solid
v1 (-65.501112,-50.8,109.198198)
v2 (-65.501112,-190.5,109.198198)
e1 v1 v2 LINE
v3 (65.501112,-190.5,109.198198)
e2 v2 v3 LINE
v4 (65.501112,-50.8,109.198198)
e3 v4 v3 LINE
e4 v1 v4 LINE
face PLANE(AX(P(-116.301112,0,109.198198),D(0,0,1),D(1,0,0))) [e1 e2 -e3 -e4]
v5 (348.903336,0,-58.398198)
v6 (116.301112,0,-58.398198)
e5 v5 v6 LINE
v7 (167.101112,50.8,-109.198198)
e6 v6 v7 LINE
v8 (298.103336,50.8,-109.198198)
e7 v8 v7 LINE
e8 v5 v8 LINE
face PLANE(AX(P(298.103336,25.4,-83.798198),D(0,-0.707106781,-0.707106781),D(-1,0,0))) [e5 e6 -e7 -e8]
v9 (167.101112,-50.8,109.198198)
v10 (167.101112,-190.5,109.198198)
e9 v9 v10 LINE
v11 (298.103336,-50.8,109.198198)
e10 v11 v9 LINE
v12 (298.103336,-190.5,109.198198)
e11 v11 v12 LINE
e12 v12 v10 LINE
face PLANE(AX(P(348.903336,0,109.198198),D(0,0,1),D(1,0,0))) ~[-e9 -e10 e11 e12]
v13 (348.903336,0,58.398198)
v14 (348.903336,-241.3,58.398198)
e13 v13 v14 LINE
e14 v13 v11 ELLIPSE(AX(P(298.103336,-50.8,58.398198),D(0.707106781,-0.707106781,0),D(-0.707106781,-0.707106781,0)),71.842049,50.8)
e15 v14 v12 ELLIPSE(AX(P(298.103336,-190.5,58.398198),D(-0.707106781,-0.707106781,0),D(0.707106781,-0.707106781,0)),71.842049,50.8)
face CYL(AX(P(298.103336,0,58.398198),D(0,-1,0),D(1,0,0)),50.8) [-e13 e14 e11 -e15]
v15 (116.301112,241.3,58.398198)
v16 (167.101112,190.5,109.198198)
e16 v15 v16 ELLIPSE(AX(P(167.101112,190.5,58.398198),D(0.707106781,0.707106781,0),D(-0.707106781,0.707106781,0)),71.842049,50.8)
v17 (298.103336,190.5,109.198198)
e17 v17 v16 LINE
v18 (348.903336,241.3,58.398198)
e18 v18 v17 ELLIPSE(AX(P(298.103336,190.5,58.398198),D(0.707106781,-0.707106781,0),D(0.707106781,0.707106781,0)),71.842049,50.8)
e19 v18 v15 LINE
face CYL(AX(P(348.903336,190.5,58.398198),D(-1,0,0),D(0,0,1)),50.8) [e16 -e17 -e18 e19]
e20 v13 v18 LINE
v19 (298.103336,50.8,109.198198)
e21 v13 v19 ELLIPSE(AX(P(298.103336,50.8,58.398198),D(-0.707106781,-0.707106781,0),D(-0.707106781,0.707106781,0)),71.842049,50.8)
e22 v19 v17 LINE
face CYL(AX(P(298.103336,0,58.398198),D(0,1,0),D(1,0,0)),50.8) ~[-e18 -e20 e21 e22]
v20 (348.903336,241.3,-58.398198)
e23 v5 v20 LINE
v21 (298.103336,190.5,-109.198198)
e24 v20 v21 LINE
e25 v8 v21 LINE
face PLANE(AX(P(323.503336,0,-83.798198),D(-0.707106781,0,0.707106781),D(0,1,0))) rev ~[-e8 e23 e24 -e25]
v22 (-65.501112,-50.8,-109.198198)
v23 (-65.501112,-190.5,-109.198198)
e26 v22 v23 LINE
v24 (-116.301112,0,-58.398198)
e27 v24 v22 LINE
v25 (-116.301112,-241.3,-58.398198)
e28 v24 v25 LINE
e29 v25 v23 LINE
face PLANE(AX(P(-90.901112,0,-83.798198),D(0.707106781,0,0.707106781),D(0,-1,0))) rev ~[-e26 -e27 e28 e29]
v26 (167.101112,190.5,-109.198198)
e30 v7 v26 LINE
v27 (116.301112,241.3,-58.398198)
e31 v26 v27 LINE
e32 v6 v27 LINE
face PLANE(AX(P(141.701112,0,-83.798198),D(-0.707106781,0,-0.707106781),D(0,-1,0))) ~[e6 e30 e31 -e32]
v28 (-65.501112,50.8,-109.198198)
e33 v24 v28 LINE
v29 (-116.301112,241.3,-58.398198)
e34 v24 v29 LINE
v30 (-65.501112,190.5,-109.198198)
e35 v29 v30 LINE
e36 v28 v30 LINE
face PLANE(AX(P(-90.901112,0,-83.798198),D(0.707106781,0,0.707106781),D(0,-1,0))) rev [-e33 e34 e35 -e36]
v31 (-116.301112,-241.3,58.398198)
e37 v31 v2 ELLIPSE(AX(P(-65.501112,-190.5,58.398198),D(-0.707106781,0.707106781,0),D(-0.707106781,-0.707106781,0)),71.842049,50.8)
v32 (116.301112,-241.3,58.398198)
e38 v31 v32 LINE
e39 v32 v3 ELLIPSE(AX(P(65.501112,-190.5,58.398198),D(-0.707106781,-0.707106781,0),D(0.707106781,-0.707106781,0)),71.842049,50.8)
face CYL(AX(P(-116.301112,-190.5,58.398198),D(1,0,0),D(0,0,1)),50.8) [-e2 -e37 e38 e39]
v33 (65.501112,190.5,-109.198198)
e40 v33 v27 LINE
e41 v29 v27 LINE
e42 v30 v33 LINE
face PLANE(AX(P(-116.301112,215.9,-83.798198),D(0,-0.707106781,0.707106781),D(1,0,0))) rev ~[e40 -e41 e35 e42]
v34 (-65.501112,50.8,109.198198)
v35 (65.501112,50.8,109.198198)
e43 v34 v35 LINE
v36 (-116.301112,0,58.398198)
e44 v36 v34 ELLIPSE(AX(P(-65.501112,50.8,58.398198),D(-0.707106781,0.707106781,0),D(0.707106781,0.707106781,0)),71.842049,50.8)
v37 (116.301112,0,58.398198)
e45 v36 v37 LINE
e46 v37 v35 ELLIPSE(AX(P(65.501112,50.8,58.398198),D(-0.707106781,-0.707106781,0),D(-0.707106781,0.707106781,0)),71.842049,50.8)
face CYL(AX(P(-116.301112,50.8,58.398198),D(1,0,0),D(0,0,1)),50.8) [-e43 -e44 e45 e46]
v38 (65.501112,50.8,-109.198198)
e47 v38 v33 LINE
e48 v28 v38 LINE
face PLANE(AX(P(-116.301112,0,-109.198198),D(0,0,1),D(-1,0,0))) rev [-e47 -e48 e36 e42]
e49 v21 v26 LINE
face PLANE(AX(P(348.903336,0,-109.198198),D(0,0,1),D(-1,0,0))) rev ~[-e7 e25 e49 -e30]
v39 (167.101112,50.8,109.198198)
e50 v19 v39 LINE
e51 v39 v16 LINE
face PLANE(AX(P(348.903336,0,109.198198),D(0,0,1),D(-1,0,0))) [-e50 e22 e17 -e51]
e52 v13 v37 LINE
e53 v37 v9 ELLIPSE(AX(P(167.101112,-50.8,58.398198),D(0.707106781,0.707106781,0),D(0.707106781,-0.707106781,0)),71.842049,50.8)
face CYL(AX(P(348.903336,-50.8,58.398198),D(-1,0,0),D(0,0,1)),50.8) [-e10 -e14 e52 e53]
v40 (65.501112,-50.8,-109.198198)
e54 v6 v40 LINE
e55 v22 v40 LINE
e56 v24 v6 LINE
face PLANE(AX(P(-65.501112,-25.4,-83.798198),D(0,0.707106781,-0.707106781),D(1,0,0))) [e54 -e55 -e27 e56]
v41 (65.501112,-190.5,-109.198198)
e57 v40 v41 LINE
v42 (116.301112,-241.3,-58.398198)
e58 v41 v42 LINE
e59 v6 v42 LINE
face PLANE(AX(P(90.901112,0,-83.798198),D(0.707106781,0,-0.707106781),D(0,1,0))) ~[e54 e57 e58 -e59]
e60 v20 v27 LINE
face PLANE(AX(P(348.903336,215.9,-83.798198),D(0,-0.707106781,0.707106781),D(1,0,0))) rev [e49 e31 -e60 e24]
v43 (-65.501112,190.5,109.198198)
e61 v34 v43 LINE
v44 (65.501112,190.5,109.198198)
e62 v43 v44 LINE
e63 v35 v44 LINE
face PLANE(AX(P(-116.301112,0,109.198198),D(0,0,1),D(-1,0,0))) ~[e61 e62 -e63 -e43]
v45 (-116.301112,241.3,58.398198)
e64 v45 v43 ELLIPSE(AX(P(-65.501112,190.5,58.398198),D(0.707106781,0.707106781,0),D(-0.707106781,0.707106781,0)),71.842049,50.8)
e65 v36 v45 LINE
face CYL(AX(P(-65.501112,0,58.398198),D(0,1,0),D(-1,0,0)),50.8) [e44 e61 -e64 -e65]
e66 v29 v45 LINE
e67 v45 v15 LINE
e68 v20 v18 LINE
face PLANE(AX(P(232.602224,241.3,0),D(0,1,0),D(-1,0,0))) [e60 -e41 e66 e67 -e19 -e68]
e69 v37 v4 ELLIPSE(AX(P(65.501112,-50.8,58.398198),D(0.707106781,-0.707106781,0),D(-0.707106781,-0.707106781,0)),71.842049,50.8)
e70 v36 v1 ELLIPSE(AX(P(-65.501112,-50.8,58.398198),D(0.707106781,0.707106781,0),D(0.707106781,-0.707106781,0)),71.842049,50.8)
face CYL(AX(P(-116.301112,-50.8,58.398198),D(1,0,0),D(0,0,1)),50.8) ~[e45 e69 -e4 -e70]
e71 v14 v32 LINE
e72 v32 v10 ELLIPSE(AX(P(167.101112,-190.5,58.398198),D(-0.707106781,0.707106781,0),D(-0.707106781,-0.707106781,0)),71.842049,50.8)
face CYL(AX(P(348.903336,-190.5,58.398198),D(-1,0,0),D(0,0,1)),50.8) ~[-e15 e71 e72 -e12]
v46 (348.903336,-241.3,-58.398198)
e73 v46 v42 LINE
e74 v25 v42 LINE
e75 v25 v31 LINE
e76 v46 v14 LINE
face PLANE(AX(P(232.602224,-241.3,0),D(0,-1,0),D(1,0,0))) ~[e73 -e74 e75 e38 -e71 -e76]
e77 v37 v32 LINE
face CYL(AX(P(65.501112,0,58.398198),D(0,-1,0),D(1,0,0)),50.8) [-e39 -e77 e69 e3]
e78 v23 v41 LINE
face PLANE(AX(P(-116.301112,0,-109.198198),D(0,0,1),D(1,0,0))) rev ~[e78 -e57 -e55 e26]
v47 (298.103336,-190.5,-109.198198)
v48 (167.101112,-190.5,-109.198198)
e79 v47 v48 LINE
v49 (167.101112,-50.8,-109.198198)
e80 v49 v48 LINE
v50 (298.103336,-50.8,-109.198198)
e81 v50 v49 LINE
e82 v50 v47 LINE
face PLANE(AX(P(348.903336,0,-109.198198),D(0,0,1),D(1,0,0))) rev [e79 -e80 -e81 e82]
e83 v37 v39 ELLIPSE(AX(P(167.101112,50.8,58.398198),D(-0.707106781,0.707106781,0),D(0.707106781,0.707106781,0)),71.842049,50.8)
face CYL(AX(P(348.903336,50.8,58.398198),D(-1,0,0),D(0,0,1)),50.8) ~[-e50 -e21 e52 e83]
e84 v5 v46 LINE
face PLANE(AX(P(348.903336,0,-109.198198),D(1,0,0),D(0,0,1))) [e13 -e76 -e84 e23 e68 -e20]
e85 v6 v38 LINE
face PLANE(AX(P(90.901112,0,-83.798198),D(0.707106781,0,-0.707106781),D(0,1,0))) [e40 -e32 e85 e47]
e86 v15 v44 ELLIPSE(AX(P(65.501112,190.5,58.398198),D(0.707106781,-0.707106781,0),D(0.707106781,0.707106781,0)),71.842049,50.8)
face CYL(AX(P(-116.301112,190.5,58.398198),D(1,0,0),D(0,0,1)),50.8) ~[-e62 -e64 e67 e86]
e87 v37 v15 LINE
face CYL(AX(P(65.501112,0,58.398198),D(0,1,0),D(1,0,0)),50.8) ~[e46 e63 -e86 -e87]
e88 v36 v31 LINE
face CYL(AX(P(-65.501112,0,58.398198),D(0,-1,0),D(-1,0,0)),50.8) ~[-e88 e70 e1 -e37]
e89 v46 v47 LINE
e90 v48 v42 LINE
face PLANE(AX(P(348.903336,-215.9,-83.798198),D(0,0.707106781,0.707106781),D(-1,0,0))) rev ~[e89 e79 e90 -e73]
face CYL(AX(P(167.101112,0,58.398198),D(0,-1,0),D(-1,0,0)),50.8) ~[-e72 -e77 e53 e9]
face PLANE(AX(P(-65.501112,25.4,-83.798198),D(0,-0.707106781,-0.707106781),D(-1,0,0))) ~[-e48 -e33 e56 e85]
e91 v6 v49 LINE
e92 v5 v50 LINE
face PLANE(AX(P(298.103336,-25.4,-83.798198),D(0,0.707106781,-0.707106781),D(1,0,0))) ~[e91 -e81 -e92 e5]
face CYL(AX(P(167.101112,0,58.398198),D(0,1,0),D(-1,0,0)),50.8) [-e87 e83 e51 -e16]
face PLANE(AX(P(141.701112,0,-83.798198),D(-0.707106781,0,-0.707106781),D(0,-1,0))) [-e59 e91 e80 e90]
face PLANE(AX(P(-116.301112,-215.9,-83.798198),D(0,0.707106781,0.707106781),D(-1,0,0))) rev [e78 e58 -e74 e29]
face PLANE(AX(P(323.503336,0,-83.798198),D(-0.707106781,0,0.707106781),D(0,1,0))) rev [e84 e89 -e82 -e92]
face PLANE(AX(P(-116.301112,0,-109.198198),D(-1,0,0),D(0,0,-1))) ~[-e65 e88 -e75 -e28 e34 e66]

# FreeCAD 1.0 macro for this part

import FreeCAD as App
import Part
import Sketcher
from FreeCAD import Vector
Q = App.Units.Quantity


def edges_at(feature, points):
    """Names of the edges that pass closest to the given points."""
    edges = feature.Shape.Edges
    near = lambda p: min(range(len(edges)), key=lambda i: edges[i].distToShape(Part.Vertex(*p))[0])
    return sorted({f"Edge{near(p) + 1}" for p in points})

doc = App.newDocument("Part")
body = doc.addObject("PartDesign::Body", "Body")

# Sketch on XZ plane
sketch1 = body.newObject("Sketcher::SketchObject", "Sketch")
sketch1.AttachmentSupport = (doc.getObject("XZ_Plane"), [""])
sketch1.MapMode = "FlatFace"
sketch1.addGeometry([
    Part.LineSegment(Vector(-116.301112, 109.198198, 0), Vector(-116.301112, -109.198198, 0)),
    Part.LineSegment(Vector(-116.301112, -109.198198, 0), Vector(116.301112, -109.198198, 0)),
    Part.LineSegment(Vector(116.301112, -109.198198, 0), Vector(116.301112, 109.198198, 0)),
    Part.LineSegment(Vector(116.301112, 109.198198, 0), Vector(-116.301112, 109.198198, 0)),
], False)
sketch1.addConstraint([
    Sketcher.Constraint("Coincident", 0, 2, 1, 1),
    Sketcher.Constraint("Coincident", 1, 2, 2, 1),
    Sketcher.Constraint("Coincident", 2, 2, 3, 1),
    Sketcher.Constraint("Coincident", 3, 2, 0, 1),
    Sketcher.Constraint("Vertical", 0),
    Sketcher.Constraint("Horizontal", 1),
    Sketcher.Constraint("Vertical", 2),
    Sketcher.Constraint("Horizontal", 3),
    Sketcher.Constraint("Symmetric", 0, 2, 2, 2, -1, 1),
    Sketcher.Constraint("DistanceY", 0, 2, -1, 1, 109.198198),
    Sketcher.Constraint("DistanceX", 1, 1, 1, 2, 232.602224),
])
pad1 = body.newObject("PartDesign::Pad", "Pad")
pad1.Profile = sketch1
pad1.Length = Q("9.5 in")
doc.recompute()

fillet = body.newObject("PartDesign::Fillet", "Fillet")
fillet.Base = (pad1, edges_at(pad1, [
    (116.301, -120.65, 109.198),
    (-116.301, -120.65, 109.198),
    (0, 0, 109.198),
    (0, -241.3, 109.198),
]))
fillet.Radius = Q("2 in")
doc.recompute()

chamfer = body.newObject("PartDesign::Chamfer", "Chamfer")
chamfer.Base = (fillet, edges_at(fillet, [(0, -241.3, -109.198)]))
chamfer.Size = Q("2 in")
doc.recompute()

chamfer2 = body.newObject("PartDesign::Chamfer", "Chamfer001")
chamfer2.Base = (chamfer, edges_at(chamfer, [(-116.301, -95.25, -109.198)]))
chamfer2.Size = Q("2 in")
doc.recompute()

chamfer3 = body.newObject("PartDesign::Chamfer", "Chamfer002")
chamfer3.Base = (chamfer2, edges_at(chamfer2, [(25.4, 0, -109.198), (116.301, -95.25, -109.198)]))
chamfer3.Size = Q("2 in")
body2 = doc.addObject("PartDesign::Body", "Body001")
doc.recompute()

body2.BaseFeature = body
doc.recompute()

mirroring = doc.addObject("Part::Mirroring", "Mirroring")
mirroring.Source = body
mirroring.Base = Vector(116.301112, -120.65, 0)
mirroring.Normal = Vector(1, 0, 0)
body3 = doc.addObject("PartDesign::Body", "Body002")
body3.BaseFeature = mirroring
boolean = body2.newObject("PartDesign::Boolean", "Boolean")
boolean.Type = "Fuse"
boolean.addObjects([body3])
doc.recompute()
body4 = doc.addObject("PartDesign::Body", "Body003")
doc.recompute()

body4.BaseFeature = body2
doc.recompute()

mirroring2 = doc.addObject("Part::Mirroring", "Mirroring001")
mirroring2.Source = body2
mirroring2.Base = Vector(116.301112, 0, 0)
mirroring2.Normal = Vector(0, 1, 0)
body5 = doc.addObject("PartDesign::Body", "Body004")
body5.BaseFeature = mirroring2
boolean2 = body4.newObject("PartDesign::Boolean", "Boolean001")
boolean2.Type = "Fuse"
boolean2.addObjects([body5])
doc.recompute()
mirroring.Visibility = False
mirroring2.Visibility = False

doc.recompute()
